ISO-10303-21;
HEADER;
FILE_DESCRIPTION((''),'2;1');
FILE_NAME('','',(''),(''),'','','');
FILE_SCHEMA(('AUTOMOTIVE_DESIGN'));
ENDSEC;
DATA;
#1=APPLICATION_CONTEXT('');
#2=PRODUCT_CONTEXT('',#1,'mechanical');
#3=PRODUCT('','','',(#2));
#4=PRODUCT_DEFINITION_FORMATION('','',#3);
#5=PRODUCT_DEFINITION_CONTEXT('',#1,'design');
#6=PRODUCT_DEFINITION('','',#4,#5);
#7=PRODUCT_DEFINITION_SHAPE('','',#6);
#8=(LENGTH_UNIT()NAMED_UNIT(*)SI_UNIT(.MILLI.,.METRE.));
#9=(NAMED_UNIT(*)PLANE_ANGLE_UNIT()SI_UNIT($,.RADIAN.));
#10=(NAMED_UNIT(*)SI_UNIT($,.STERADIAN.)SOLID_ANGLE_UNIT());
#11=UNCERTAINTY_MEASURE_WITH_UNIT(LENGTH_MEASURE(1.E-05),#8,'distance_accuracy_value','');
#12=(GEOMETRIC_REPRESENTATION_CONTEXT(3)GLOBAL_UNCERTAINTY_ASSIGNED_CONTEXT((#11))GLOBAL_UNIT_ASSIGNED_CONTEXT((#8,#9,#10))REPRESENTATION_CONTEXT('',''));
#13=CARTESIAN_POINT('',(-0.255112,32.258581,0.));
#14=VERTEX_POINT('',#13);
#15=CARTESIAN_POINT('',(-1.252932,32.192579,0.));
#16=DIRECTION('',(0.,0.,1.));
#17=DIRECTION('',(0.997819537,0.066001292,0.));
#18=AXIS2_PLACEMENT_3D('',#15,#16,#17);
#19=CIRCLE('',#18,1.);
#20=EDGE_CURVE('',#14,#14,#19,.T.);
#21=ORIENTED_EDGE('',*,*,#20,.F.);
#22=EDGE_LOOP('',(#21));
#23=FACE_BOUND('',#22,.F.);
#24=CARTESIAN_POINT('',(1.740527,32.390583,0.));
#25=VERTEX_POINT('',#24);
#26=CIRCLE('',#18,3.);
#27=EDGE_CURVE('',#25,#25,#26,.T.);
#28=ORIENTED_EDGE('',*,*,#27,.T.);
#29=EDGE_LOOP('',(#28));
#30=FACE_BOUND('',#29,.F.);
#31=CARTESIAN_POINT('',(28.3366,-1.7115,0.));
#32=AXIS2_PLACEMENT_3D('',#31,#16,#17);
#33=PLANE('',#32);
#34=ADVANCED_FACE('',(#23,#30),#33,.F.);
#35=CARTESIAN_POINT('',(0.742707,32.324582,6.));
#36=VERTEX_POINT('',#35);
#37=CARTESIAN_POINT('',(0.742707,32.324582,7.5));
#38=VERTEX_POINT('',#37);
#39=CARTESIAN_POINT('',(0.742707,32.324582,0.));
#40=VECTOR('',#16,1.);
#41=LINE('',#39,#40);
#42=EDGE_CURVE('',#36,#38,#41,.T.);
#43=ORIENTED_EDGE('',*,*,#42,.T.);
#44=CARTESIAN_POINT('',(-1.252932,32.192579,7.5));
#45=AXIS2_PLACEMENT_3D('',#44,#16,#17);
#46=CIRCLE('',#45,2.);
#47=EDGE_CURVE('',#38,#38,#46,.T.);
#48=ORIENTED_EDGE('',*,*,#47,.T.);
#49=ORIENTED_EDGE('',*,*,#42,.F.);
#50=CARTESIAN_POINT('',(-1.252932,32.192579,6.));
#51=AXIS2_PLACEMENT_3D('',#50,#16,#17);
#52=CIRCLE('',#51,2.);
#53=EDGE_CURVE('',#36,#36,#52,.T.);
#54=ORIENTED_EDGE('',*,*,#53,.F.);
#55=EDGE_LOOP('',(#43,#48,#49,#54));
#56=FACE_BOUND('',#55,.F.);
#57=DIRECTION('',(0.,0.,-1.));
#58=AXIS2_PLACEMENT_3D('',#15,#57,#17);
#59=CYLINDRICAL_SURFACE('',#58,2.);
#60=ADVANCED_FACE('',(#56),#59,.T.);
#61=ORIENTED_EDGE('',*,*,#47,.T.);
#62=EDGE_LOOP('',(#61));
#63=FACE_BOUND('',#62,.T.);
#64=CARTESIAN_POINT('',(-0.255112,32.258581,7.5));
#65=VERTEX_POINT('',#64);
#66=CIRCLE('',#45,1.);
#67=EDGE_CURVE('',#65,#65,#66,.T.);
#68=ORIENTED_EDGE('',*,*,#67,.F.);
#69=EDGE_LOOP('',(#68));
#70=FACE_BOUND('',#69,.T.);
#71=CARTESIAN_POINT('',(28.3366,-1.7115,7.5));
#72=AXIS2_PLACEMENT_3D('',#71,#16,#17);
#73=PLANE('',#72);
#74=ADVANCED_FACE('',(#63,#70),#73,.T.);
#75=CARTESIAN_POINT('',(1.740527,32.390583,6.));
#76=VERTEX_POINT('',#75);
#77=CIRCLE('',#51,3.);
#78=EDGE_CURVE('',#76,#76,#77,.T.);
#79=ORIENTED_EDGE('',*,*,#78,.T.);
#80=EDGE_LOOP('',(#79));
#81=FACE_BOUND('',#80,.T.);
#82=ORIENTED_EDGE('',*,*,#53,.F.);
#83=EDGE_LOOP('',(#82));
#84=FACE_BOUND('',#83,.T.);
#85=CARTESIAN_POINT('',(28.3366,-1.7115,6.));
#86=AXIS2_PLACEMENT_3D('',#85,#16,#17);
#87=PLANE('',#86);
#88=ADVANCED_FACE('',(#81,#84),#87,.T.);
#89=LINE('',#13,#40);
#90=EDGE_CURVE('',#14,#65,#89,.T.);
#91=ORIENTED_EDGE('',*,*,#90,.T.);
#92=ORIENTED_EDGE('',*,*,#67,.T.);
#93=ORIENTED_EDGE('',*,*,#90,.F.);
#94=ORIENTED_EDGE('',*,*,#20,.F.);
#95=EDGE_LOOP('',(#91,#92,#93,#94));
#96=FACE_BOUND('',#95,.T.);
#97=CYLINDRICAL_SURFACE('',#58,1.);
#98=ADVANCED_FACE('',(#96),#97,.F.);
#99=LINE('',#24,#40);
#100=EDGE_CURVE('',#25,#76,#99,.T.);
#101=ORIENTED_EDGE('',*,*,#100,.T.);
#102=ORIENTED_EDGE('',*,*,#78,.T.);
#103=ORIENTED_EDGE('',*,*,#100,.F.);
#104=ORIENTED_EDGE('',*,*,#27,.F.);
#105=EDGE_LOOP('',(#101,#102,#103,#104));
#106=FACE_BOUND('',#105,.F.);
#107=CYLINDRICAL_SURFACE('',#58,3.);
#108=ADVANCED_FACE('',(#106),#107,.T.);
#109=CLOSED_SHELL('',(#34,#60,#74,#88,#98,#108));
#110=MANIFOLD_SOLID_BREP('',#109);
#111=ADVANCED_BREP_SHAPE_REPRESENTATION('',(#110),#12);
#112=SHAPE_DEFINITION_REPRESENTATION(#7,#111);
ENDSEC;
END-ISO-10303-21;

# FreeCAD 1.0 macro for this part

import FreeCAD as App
import Part
import Sketcher
from FreeCAD import Vector

doc = App.newDocument("Part")
body = doc.addObject("PartDesign::Body", "Body")

# Sketch on XY plane
sketch1 = doc.addObject("Sketcher::SketchObject", "Sketch")
body.addObject(sketch1)
sketch1.AttachmentSupport = (doc.XY_Plane, [""])
sketch1.MapMode = "FlatFace"
sketch1.addGeometry([
    Part.Circle(Vector(-1.252932, 32.192579, 0), Vector(0, 0, 1), 2),
    Part.Circle(Vector(-1.252932, 32.192579, 0), Vector(0, 0, 1), 1),
], False)
sketch1.addConstraint([
    Sketcher.Constraint("Coincident", 1, 3, 0, 3),
    Sketcher.Constraint("Diameter", 0, 4.0),
    Sketcher.Constraint("Diameter", 1, 2.0),
    Sketcher.Constraint("DistanceX", 0, 3, -1, 1, 1.253),
    Sketcher.Constraint("DistanceY", -1, 1, 0, 3, 32.1926),
])
pad1 = doc.addObject("PartDesign::Pad", "Pad")
body.addObject(pad1)
pad1.Profile = sketch1
pad1.Length = 7.5

# Sketch on XY plane
sketch2 = doc.addObject("Sketcher::SketchObject", "Sketch001")
body.addObject(sketch2)
sketch2.AttachmentSupport = (doc.XY_Plane, [""])
sketch2.MapMode = "FlatFace"
sketch2.addGeometry([
    Part.Circle(Vector(-1.252932, 32.192579, 0), Vector(0, 0, 1), 3),
    Part.Circle(Vector(-1.252932, 32.192579, 0), Vector(0, 0, 1), 2),
], False)
sketch2.addConstraint([
    Sketcher.Constraint("Coincident", 1, 3, 0, 3),
    Sketcher.Constraint("Diameter", 0, 6.0),
    Sketcher.Constraint("Diameter", 1, 4.0),
    Sketcher.Constraint("DistanceX", 0, 3, -1, 1, 1.253),
    Sketcher.Constraint("DistanceY", -1, 1, 0, 3, 32.1926),
])
pad2 = doc.addObject("PartDesign::Pad", "Pad001")
body.addObject(pad2)
pad2.Profile = sketch2
pad2.Length = 6

doc.recompute()
